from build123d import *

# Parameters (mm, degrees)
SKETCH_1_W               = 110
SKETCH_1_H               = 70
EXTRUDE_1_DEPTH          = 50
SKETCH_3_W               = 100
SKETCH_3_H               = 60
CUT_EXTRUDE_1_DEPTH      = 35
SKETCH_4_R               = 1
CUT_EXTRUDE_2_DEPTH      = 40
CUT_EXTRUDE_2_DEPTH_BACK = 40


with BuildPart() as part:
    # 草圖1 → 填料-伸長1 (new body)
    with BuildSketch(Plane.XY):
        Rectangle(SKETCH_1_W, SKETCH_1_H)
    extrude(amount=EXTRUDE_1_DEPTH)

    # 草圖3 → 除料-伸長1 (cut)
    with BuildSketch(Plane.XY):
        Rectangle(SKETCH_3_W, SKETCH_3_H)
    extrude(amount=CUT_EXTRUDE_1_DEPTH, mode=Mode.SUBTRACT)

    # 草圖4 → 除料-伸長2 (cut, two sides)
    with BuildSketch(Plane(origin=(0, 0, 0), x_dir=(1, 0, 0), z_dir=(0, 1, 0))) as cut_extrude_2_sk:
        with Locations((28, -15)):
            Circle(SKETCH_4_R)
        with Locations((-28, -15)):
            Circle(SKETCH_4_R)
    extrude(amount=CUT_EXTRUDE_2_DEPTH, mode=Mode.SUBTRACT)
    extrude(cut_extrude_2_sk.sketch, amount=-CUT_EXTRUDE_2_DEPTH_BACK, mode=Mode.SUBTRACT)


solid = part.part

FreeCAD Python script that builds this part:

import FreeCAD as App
import Part
import Sketcher
from FreeCAD import Vector


def add_polygon(sketch, points):
    """Adds a closed chain of lines whose ends are joined by coincident constraints."""
    first, n = sketch.GeometryCount, len(points)
    for a, b in zip(points, points[1:] + points[:1]):
        sketch.addGeometry(Part.LineSegment(App.Vector(*a, 0), App.Vector(*b, 0)), False)
    for i in range(n):
        sketch.addConstraint(Sketcher.Constraint("Coincident", first + i, 2, first + (i + 1) % n, 1))

doc = App.newDocument("Part")
params = doc.addObject("Spreadsheet::Sheet", "Params")
for row, (alias, value) in enumerate([
    ("sketch1_width", "110 mm"),
    ("sketch1_height", "70 mm"),
    ("pad1_length", "50 mm"),
    ("sketch2_width", "100 mm"),
    ("sketch2_height", "60 mm"),
    ("pocket1_length", "35 mm"),
    ("sketch3_diameter", "2 mm"),
], start=1):
    params.set(f"A{row}", alias)
    params.set(f"B{row}", "=" + value)
    params.setAlias(f"B{row}", alias)

body = doc.addObject("PartDesign::Body", "Body")

# Sketch on XY plane
sketch1 = doc.addObject("Sketcher::SketchObject", "Sketch")
body.addObject(sketch1)
sketch1.AttachmentSupport = (doc.XY_Plane, [""])
sketch1.MapMode = "FlatFace"
add_polygon(sketch1, [(-55, 35), (-55, -35), (55, -35), (55, 35)])  # lines 0-3
sketch1.addConstraint([
    Sketcher.Constraint("Vertical", 0),
    Sketcher.Constraint("Horizontal", 1),
    Sketcher.Constraint("Vertical", 2),
    Sketcher.Constraint("Horizontal", 3),
    Sketcher.Constraint("Symmetric", 0, 2, 2, 2, -1, 1),
    Sketcher.Constraint("DistanceX", 1, 1, 1, 2, 110.0),
    Sketcher.Constraint("DistanceY", 0, 2, 0, 1, 70.0),
])
sketch1.setExpression("Constraints[9]", "Params.sketch1_width")
sketch1.setExpression("Constraints[10]", "Params.sketch1_height")
pad1 = doc.addObject("PartDesign::Pad", "Pad")
body.addObject(pad1)
pad1.Profile = sketch1
pad1.setExpression("Length", "Params.pad1_length")

# Sketch on XY plane
sketch2 = doc.addObject("Sketcher::SketchObject", "Sketch001")
body.addObject(sketch2)
sketch2.AttachmentSupport = (doc.XY_Plane, [""])
sketch2.MapMode = "FlatFace"
add_polygon(sketch2, [(-50, 30), (-50, -30), (50, -30), (50, 30)])  # lines 0-3
sketch2.addConstraint([
    Sketcher.Constraint("Vertical", 0),
    Sketcher.Constraint("Horizontal", 1),
    Sketcher.Constraint("Vertical", 2),
    Sketcher.Constraint("Horizontal", 3),
    Sketcher.Constraint("Symmetric", 0, 2, 2, 2, -1, 1),
    Sketcher.Constraint("DistanceX", 1, 1, 1, 2, 100.0),
    Sketcher.Constraint("DistanceY", 0, 2, 0, 1, 60.0),
])
sketch2.setExpression("Constraints[9]", "Params.sketch2_width")
sketch2.setExpression("Constraints[10]", "Params.sketch2_height")
pocket1 = doc.addObject("PartDesign::Pocket", "Pocket")
body.addObject(pocket1)
pocket1.Profile = sketch2
pocket1.setExpression("Length", "Params.pocket1_length")
pocket1.Reversed = True

# Sketch on XZ plane
sketch3 = doc.addObject("Sketcher::SketchObject", "Sketch002")
body.addObject(sketch3)
sketch3.AttachmentSupport = (doc.XZ_Plane, [""])
sketch3.MapMode = "FlatFace"
sketch3.addGeometry([
    Part.Circle(Vector(28, 15, 0), Vector(0, 0, 1), 1),
    Part.Circle(Vector(-28, 15, 0), Vector(0, 0, 1), 1),
], False)
sketch3.addConstraint([
    Sketcher.Constraint("Equal", 0, 1),
    Sketcher.Constraint("Symmetric", 0, 3, 1, 3, -2),
    Sketcher.Constraint("Diameter", 0, 2.0),
    Sketcher.Constraint("DistanceX", -1, 1, 0, 3, 28.0),
    Sketcher.Constraint("DistanceY", -1, 1, 0, 3, 15.0),
])
sketch3.setExpression("Constraints[2]", "Params.sketch3_diameter")
pocket2 = doc.addObject("PartDesign::Pocket", "Pocket001")
body.addObject(pocket2)
pocket2.Profile = sketch3
pocket2.Type = "ThroughAll"
pocket2.Midplane = True

doc.recompute()
